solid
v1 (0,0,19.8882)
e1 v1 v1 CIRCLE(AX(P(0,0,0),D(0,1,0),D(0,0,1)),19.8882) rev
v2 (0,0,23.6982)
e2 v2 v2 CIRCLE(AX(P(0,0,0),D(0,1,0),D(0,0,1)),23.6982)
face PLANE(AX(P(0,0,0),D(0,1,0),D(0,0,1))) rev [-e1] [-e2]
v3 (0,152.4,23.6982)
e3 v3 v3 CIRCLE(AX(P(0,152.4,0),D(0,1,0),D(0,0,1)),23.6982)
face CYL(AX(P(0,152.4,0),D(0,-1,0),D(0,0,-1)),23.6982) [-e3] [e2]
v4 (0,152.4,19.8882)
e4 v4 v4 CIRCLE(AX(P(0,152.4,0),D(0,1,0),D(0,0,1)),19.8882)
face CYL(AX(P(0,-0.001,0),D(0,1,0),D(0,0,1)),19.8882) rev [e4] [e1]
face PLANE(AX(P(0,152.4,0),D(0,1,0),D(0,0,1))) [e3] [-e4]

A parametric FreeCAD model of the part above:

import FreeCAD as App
import Part
import Sketcher

V = App.Vector
Q = App.Units.Quantity

doc = App.newDocument("Part")
body = doc.addObject("PartDesign::Body", "Body")

sketch1 = body.newObject("Sketcher::SketchObject", "Sketch")
sketch1.AttachmentSupport = (doc.getObject("XZ_Plane"), [""])
sketch1.MapMode = "FlatFace"
sketch1.addGeometry(Part.Circle(V(0, 0, 0), V(0, 0, 1), 24), False)
sketch1.addConstraint(Sketcher.Constraint("Coincident", 0, 3, -1, 1))
sketch1.addConstraint(Sketcher.Constraint("Diameter", 0, Q("1.866 in")))
pad1 = body.newObject("PartDesign::Pad", "Pad")
pad1.Profile = sketch1
pad1.Length = Q("6 in")
pad1.Reversed = True

sketch2 = body.newObject("Sketcher::SketchObject", "Sketch001")
sketch2.AttachmentSupport = (doc.getObject("XZ_Plane"), [""])
sketch2.MapMode = "FlatFace"
sketch2.AttachmentOffset = App.Placement(V(0, 0, -6 * 25.4), App.Rotation())
sketch2.addGeometry(Part.Circle(V(0, 0, 0), V(0, 0, 1), 20), False)
sketch2.addConstraint(Sketcher.Constraint("Coincident", 0, 3, -1, 1))
sketch2.addConstraint(Sketcher.Constraint("Diameter", 0, Q("1.566 in")))
pocket1 = body.newObject("PartDesign::Pocket", "Pocket")
pocket1.Profile = sketch2
pocket1.Type = "UpToFirst"
pocket1.Reversed = True

doc.recompute()
